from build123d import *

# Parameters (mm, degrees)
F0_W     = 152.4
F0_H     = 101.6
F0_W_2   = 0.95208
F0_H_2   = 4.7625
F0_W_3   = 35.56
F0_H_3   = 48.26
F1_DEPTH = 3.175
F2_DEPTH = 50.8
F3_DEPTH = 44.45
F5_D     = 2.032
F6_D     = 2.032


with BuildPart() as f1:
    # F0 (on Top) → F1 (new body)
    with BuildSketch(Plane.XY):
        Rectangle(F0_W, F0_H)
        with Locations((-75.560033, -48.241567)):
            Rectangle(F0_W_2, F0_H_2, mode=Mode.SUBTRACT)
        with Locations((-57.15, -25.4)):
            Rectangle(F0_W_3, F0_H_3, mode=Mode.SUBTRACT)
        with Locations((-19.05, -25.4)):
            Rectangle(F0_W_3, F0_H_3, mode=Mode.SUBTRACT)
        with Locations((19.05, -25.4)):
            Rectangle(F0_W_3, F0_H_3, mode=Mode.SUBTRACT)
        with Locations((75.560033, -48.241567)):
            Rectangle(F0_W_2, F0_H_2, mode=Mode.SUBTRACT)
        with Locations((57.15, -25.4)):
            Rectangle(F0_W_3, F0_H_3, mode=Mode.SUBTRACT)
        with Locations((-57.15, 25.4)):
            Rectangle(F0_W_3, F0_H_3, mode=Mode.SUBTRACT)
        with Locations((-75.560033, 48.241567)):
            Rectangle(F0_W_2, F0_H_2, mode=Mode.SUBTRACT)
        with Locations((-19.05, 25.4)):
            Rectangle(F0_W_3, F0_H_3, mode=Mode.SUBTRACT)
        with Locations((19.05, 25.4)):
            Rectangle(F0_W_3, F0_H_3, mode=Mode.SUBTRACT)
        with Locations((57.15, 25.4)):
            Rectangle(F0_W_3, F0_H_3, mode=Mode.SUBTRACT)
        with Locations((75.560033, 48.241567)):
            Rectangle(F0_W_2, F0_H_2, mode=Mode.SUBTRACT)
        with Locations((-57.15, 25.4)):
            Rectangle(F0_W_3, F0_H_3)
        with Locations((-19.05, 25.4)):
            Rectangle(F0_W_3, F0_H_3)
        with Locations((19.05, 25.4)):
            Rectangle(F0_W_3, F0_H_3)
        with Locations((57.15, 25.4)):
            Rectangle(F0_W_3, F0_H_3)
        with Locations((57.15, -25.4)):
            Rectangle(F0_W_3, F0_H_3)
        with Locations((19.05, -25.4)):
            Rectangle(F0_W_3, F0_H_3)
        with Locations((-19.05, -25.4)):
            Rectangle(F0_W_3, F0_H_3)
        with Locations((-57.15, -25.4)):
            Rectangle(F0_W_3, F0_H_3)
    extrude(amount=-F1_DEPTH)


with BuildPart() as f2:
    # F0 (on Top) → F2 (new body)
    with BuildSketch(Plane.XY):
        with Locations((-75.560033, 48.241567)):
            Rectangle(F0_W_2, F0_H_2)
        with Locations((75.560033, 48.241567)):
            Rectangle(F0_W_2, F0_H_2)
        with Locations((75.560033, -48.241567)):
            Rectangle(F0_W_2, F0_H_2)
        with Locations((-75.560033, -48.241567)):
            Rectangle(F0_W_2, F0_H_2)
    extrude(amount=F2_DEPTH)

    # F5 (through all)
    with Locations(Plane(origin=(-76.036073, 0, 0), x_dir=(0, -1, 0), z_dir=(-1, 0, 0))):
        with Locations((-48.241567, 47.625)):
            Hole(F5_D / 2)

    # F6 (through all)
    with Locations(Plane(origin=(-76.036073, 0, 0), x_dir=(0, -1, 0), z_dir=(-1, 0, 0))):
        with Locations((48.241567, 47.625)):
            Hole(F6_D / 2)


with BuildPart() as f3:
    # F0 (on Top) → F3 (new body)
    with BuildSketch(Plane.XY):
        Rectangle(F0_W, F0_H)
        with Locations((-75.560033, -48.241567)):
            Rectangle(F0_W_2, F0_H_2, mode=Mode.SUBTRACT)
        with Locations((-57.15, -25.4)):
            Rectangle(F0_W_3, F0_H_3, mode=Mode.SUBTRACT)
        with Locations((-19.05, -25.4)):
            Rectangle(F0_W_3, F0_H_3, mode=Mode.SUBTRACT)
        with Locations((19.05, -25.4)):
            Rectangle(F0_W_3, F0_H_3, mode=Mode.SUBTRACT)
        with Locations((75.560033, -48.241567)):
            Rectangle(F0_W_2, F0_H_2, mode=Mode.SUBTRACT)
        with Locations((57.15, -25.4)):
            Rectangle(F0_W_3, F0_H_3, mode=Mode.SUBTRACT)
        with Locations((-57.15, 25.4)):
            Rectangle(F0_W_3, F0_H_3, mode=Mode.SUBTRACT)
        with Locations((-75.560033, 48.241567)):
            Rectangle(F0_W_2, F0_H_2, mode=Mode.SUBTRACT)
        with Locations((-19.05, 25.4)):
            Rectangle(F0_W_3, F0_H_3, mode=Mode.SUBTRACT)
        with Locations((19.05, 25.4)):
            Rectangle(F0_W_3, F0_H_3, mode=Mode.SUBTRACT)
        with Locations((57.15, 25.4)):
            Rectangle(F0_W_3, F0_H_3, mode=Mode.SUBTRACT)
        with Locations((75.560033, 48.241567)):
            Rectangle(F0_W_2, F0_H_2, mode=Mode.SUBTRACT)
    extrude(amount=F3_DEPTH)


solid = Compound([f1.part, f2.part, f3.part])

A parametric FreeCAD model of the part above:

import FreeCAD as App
import Part
import Sketcher

V = App.Vector
Q = App.Units.Quantity

doc = App.newDocument("Part")
body = doc.addObject("PartDesign::Body", "Body")

# Sketch on XY plane
sketch1 = body.newObject("Sketcher::SketchObject", "Sketch")
sketch1.AttachmentSupport = (doc.getObject("XY_Plane"), [""])
sketch1.MapMode = "FlatFace"
sketch1.addGeometry(Part.LineSegment(V(-76.2, 50.8, 0), V(-76.2, -50.8, 0)), False)
sketch1.addGeometry(Part.LineSegment(V(-76.2, -50.8, 0), V(76.2, -50.8, 0)), False)
sketch1.addGeometry(Part.LineSegment(V(76.2, -50.8, 0), V(76.2, 50.8, 0)), False)
sketch1.addGeometry(Part.LineSegment(V(76.2, 50.8, 0), V(-76.2, 50.8, 0)), False)
sketch1.addGeometry(Part.LineSegment(V(-75.1, -50.6, 0), V(-76, -50.6, 0)), False)
sketch1.addGeometry(Part.LineSegment(V(-76, -50.6, 0), V(-76, -45.9, 0)), False)
sketch1.addGeometry(Part.LineSegment(V(-76, -45.9, 0), V(-75.1, -45.9, 0)), False)
sketch1.addGeometry(Part.LineSegment(V(-75.1, -45.9, 0), V(-75.1, -50.6, 0)), False)
sketch1.addGeometry(Part.LineSegment(V(76, -50.6, 0), V(75.1, -50.6, 0)), False)
sketch1.addGeometry(Part.LineSegment(V(75.1, -50.6, 0), V(75.1, -45.9, 0)), False)
sketch1.addGeometry(Part.LineSegment(V(75.1, -45.9, 0), V(76, -45.9, 0)), False)
sketch1.addGeometry(Part.LineSegment(V(76, -45.9, 0), V(76, -50.6, 0)), False)
sketch1.addGeometry(Part.LineSegment(V(-75.1, 45.9, 0), V(-76, 45.9, 0)), False)
sketch1.addGeometry(Part.LineSegment(V(-76, 45.9, 0), V(-76, 50.6, 0)), False)
sketch1.addGeometry(Part.LineSegment(V(-76, 50.6, 0), V(-75.1, 50.6, 0)), False)
sketch1.addGeometry(Part.LineSegment(V(-75.1, 50.6, 0), V(-75.1, 45.9, 0)), False)
sketch1.addGeometry(Part.LineSegment(V(76, 45.9, 0), V(75.1, 45.9, 0)), False)
sketch1.addGeometry(Part.LineSegment(V(75.1, 45.9, 0), V(75.1, 50.6, 0)), False)
sketch1.addGeometry(Part.LineSegment(V(75.1, 50.6, 0), V(76, 50.6, 0)), False)
sketch1.addGeometry(Part.LineSegment(V(76, 50.6, 0), V(76, 45.9, 0)), False)
sketch1.addConstraint(Sketcher.Constraint("Coincident", 0, 2, 1, 1))
sketch1.addConstraint(Sketcher.Constraint("Coincident", 1, 2, 2, 1))
sketch1.addConstraint(Sketcher.Constraint("Coincident", 2, 2, 3, 1))
sketch1.addConstraint(Sketcher.Constraint("Coincident", 3, 2, 0, 1))
sketch1.addConstraint(Sketcher.Constraint("Coincident", 4, 2, 5, 1))
sketch1.addConstraint(Sketcher.Constraint("Coincident", 5, 2, 6, 1))
sketch1.addConstraint(Sketcher.Constraint("Coincident", 6, 2, 7, 1))
sketch1.addConstraint(Sketcher.Constraint("Coincident", 7, 2, 4, 1))
sketch1.addConstraint(Sketcher.Constraint("Coincident", 8, 2, 9, 1))
sketch1.addConstraint(Sketcher.Constraint("Coincident", 9, 2, 10, 1))
sketch1.addConstraint(Sketcher.Constraint("Coincident", 10, 2, 11, 1))
sketch1.addConstraint(Sketcher.Constraint("Coincident", 11, 2, 8, 1))
sketch1.addConstraint(Sketcher.Constraint("Coincident", 12, 2, 13, 1))
sketch1.addConstraint(Sketcher.Constraint("Coincident", 13, 2, 14, 1))
sketch1.addConstraint(Sketcher.Constraint("Coincident", 14, 2, 15, 1))
sketch1.addConstraint(Sketcher.Constraint("Coincident", 15, 2, 12, 1))
sketch1.addConstraint(Sketcher.Constraint("Coincident", 16, 2, 17, 1))
sketch1.addConstraint(Sketcher.Constraint("Coincident", 17, 2, 18, 1))
sketch1.addConstraint(Sketcher.Constraint("Coincident", 18, 2, 19, 1))
sketch1.addConstraint(Sketcher.Constraint("Coincident", 19, 2, 16, 1))
sketch1.addConstraint(Sketcher.Constraint("Vertical", 0))
sketch1.addConstraint(Sketcher.Constraint("Horizontal", 1))
sketch1.addConstraint(Sketcher.Constraint("Vertical", 2))
sketch1.addConstraint(Sketcher.Constraint("Horizontal", 3))
sketch1.addConstraint(Sketcher.Constraint("Horizontal", 4))
sketch1.addConstraint(Sketcher.Constraint("Vertical", 5))
sketch1.addConstraint(Sketcher.Constraint("Horizontal", 6))
sketch1.addConstraint(Sketcher.Constraint("Vertical", 7))
sketch1.addConstraint(Sketcher.Constraint("Horizontal", 8))
sketch1.addConstraint(Sketcher.Constraint("Vertical", 9))
sketch1.addConstraint(Sketcher.Constraint("Horizontal", 10))
sketch1.addConstraint(Sketcher.Constraint("Vertical", 11))
sketch1.addConstraint(Sketcher.Constraint("Horizontal", 12))
sketch1.addConstraint(Sketcher.Constraint("Vertical", 13))
sketch1.addConstraint(Sketcher.Constraint("Horizontal", 14))
sketch1.addConstraint(Sketcher.Constraint("Vertical", 15))
sketch1.addConstraint(Sketcher.Constraint("Horizontal", 16))
sketch1.addConstraint(Sketcher.Constraint("Vertical", 17))
sketch1.addConstraint(Sketcher.Constraint("Horizontal", 18))
sketch1.addConstraint(Sketcher.Constraint("Vertical", 19))
sketch1.addConstraint(Sketcher.Constraint("Symmetric", 0, 2, 2, 2, -1, 1))
sketch1.addConstraint(Sketcher.Constraint("Symmetric", 10, 2, 12, 2, -1, 1))
sketch1.addConstraint(Sketcher.Constraint("Symmetric", 8, 2, 14, 2, -1, 1))
sketch1.addConstraint(Sketcher.Constraint("Symmetric", 6, 2, 16, 2, -1, 1))
sketch1.addConstraint(Sketcher.Constraint("Symmetric", 4, 2, 18, 2, -1, 1))
sketch1.addConstraint(Sketcher.Constraint("Symmetric", 7, 2, 8, 2, -2))
sketch1.addConstraint(Sketcher.Constraint("Symmetric", 5, 2, 10, 2, -2))
sketch1.addConstraint(Sketcher.Constraint("DistanceX", 1, 1, 1, 2, Q("6 in")))
sketch1.addConstraint(Sketcher.Constraint("DistanceY", 0, 2, 0, 1, Q("4 in")))
sketch1.addConstraint(Sketcher.Constraint("DistanceY", 5, 1, 5, 2, Q("0.1875 in")))
sketch1.addConstraint(Sketcher.Constraint("DistanceX", 4, 2, 4, 1, Q("0.95208 mm")))
sketch1.addConstraint(Sketcher.Constraint("DistanceX", 4, 2, -1, 1, Q("76.036073 mm")))
sketch1.addConstraint(Sketcher.Constraint("DistanceY", 4, 2, -1, 1, Q("50.622817 mm")))
pad1 = body.newObject("PartDesign::Pad", "Pad")
pad1.Profile = sketch1
pad1.Length = Q("0.125 in")
pad1.Reversed = True
body2 = doc.addObject("PartDesign::Body", "Body001")
body2.AllowCompound = True

# Sketch on XY plane
sketch2 = body2.newObject("Sketcher::SketchObject", "Sketch001")
sketch2.AttachmentSupport = (doc.getObject("XY_Plane001"), [""])
sketch2.MapMode = "FlatFace"
sketch2.addGeometry(Part.LineSegment(V(-76, 50.6, 0), V(-76, 45.9, 0)), False)
sketch2.addGeometry(Part.LineSegment(V(-76, 45.9, 0), V(-75.1, 45.9, 0)), False)
sketch2.addGeometry(Part.LineSegment(V(-75.1, 45.9, 0), V(-75.1, 50.6, 0)), False)
sketch2.addGeometry(Part.LineSegment(V(-75.1, 50.6, 0), V(-76, 50.6, 0)), False)
sketch2.addGeometry(Part.LineSegment(V(75.1, 50.6, 0), V(75.1, 45.9, 0)), False)
sketch2.addGeometry(Part.LineSegment(V(75.1, 45.9, 0), V(76, 45.9, 0)), False)
sketch2.addGeometry(Part.LineSegment(V(76, 45.9, 0), V(76, 50.6, 0)), False)
sketch2.addGeometry(Part.LineSegment(V(76, 50.6, 0), V(75.1, 50.6, 0)), False)
sketch2.addGeometry(Part.LineSegment(V(75.1, -45.9, 0), V(75.1, -50.6, 0)), False)
sketch2.addGeometry(Part.LineSegment(V(75.1, -50.6, 0), V(76, -50.6, 0)), False)
sketch2.addGeometry(Part.LineSegment(V(76, -50.6, 0), V(76, -45.9, 0)), False)
sketch2.addGeometry(Part.LineSegment(V(76, -45.9, 0), V(75.1, -45.9, 0)), False)
sketch2.addGeometry(Part.LineSegment(V(-76, -45.9, 0), V(-76, -50.6, 0)), False)
sketch2.addGeometry(Part.LineSegment(V(-76, -50.6, 0), V(-75.1, -50.6, 0)), False)
sketch2.addGeometry(Part.LineSegment(V(-75.1, -50.6, 0), V(-75.1, -45.9, 0)), False)
sketch2.addGeometry(Part.LineSegment(V(-75.1, -45.9, 0), V(-76, -45.9, 0)), False)
sketch2.addConstraint(Sketcher.Constraint("Coincident", 0, 2, 1, 1))
sketch2.addConstraint(Sketcher.Constraint("Coincident", 1, 2, 2, 1))
sketch2.addConstraint(Sketcher.Constraint("Coincident", 2, 2, 3, 1))
sketch2.addConstraint(Sketcher.Constraint("Coincident", 3, 2, 0, 1))
sketch2.addConstraint(Sketcher.Constraint("Coincident", 4, 2, 5, 1))
sketch2.addConstraint(Sketcher.Constraint("Coincident", 5, 2, 6, 1))
sketch2.addConstraint(Sketcher.Constraint("Coincident", 6, 2, 7, 1))
sketch2.addConstraint(Sketcher.Constraint("Coincident", 7, 2, 4, 1))
sketch2.addConstraint(Sketcher.Constraint("Coincident", 8, 2, 9, 1))
sketch2.addConstraint(Sketcher.Constraint("Coincident", 9, 2, 10, 1))
sketch2.addConstraint(Sketcher.Constraint("Coincident", 10, 2, 11, 1))
sketch2.addConstraint(Sketcher.Constraint("Coincident", 11, 2, 8, 1))
sketch2.addConstraint(Sketcher.Constraint("Coincident", 12, 2, 13, 1))
sketch2.addConstraint(Sketcher.Constraint("Coincident", 13, 2, 14, 1))
sketch2.addConstraint(Sketcher.Constraint("Coincident", 14, 2, 15, 1))
sketch2.addConstraint(Sketcher.Constraint("Coincident", 15, 2, 12, 1))
sketch2.addConstraint(Sketcher.Constraint("Vertical", 0))
sketch2.addConstraint(Sketcher.Constraint("Horizontal", 1))
sketch2.addConstraint(Sketcher.Constraint("Vertical", 2))
sketch2.addConstraint(Sketcher.Constraint("Horizontal", 3))
sketch2.addConstraint(Sketcher.Constraint("Vertical", 4))
sketch2.addConstraint(Sketcher.Constraint("Horizontal", 5))
sketch2.addConstraint(Sketcher.Constraint("Vertical", 6))
sketch2.addConstraint(Sketcher.Constraint("Horizontal", 7))
sketch2.addConstraint(Sketcher.Constraint("Vertical", 8))
sketch2.addConstraint(Sketcher.Constraint("Horizontal", 9))
sketch2.addConstraint(Sketcher.Constraint("Vertical", 10))
sketch2.addConstraint(Sketcher.Constraint("Horizontal", 11))
sketch2.addConstraint(Sketcher.Constraint("Vertical", 12))
sketch2.addConstraint(Sketcher.Constraint("Horizontal", 13))
sketch2.addConstraint(Sketcher.Constraint("Vertical", 14))
sketch2.addConstraint(Sketcher.Constraint("Horizontal", 15))
sketch2.addConstraint(Sketcher.Constraint("Symmetric", 2, 2, 8, 2, -1, 1))
sketch2.addConstraint(Sketcher.Constraint("Symmetric", 0, 2, 10, 2, -1, 1))
sketch2.addConstraint(Sketcher.Constraint("Symmetric", 6, 2, 12, 2, -1, 1))
sketch2.addConstraint(Sketcher.Constraint("Symmetric", 4, 2, 14, 2, -1, 1))
sketch2.addConstraint(Sketcher.Constraint("Symmetric", 1, 2, 4, 2, -2))
sketch2.addConstraint(Sketcher.Constraint("Symmetric", 3, 2, 6, 2, -2))
sketch2.addConstraint(Sketcher.Constraint("DistanceY", 0, 2, 0, 1, Q("0.1875 in")))
sketch2.addConstraint(Sketcher.Constraint("DistanceX", 1, 1, 1, 2, Q("0.95208 mm")))
sketch2.addConstraint(Sketcher.Constraint("DistanceX", 0, 2, -1, 1, Q("76.036073 mm")))
sketch2.addConstraint(Sketcher.Constraint("DistanceY", -1, 1, 0, 2, Q("45.860317 mm")))
pad2 = body2.newObject("PartDesign::Pad", "Pad001")
pad2.Profile = sketch2
pad2.Length = Q("2 in")

# Sketch on YZ plane
sketch3 = body2.newObject("Sketcher::SketchObject", "Sketch002")
sketch3.AttachmentSupport = (doc.getObject("YZ_Plane001"), [""])
sketch3.MapMode = "FlatFace"
sketch3.AttachmentOffset = App.Placement(V(0, 0, -76.036073), App.Rotation())
sketch3.addGeometry(Part.Circle(V(48.2, 47.6, 0), V(0, 0, 1), 1), False)
sketch3.addConstraint(Sketcher.Constraint("Diameter", 0, Q("0.08 in")))
sketch3.addConstraint(Sketcher.Constraint("DistanceY", -1, 1, 0, 3, Q("1.875 in")))
sketch3.addConstraint(Sketcher.Constraint("DistanceX", -1, 1, 0, 3, Q("48.241567 mm")))
doc.recompute()
hole = body2.newObject("PartDesign::Hole", "Hole")
hole.Profile = sketch3
hole.ThreadType = "None"
hole.Diameter = Q("0.08 in")
hole.DepthType = "ThroughAll"
hole.Reversed = True

# Sketch on YZ plane
sketch4 = body2.newObject("Sketcher::SketchObject", "Sketch003")
sketch4.AttachmentSupport = (doc.getObject("YZ_Plane001"), [""])
sketch4.MapMode = "FlatFace"
sketch4.AttachmentOffset = App.Placement(V(0, 0, -76.036073), App.Rotation())
sketch4.addGeometry(Part.Circle(V(-48.2, 47.6, 0), V(0, 0, 1), 1), False)
sketch4.addConstraint(Sketcher.Constraint("Diameter", 0, Q("0.08 in")))
sketch4.addConstraint(Sketcher.Constraint("DistanceY", -1, 1, 0, 3, Q("1.875 in")))
sketch4.addConstraint(Sketcher.Constraint("DistanceX", 0, 3, -1, 1, Q("48.241567 mm")))
doc.recompute()
hole2 = body2.newObject("PartDesign::Hole", "Hole001")
hole2.Profile = sketch4
hole2.ThreadType = "None"
hole2.Diameter = Q("0.08 in")
hole2.DepthType = "ThroughAll"
hole2.Reversed = True
body3 = doc.addObject("PartDesign::Body", "Body002")

# Sketch on XY plane
sketch5 = body3.newObject("Sketcher::SketchObject", "Sketch004")
sketch5.AttachmentSupport = (doc.getObject("XY_Plane002"), [""])
sketch5.MapMode = "FlatFace"
sketch5.addGeometry(Part.LineSegment(V(-76.2, 50.8, 0), V(-76.2, -50.8, 0)), False)
sketch5.addGeometry(Part.LineSegment(V(-76.2, -50.8, 0), V(76.2, -50.8, 0)), False)
sketch5.addGeometry(Part.LineSegment(V(76.2, -50.8, 0), V(76.2, 50.8, 0)), False)
sketch5.addGeometry(Part.LineSegment(V(76.2, 50.8, 0), V(-76.2, 50.8, 0)), False)
sketch5.addGeometry(Part.LineSegment(V(-75.1, -50.6, 0), V(-76, -50.6, 0)), False)
sketch5.addGeometry(Part.LineSegment(V(-76, -50.6, 0), V(-76, -45.9, 0)), False)
sketch5.addGeometry(Part.LineSegment(V(-76, -45.9, 0), V(-75.1, -45.9, 0)), False)
sketch5.addGeometry(Part.LineSegment(V(-75.1, -45.9, 0), V(-75.1, -50.6, 0)), False)
sketch5.addGeometry(Part.LineSegment(V(-39.4, -49.5, 0), V(-74.9, -49.5, 0)), False)
sketch5.addGeometry(Part.LineSegment(V(-74.9, -49.5, 0), V(-74.9, -1.3, 0)), False)
sketch5.addGeometry(Part.LineSegment(V(-74.9, -1.3, 0), V(-39.4, -1.3, 0)), False)
sketch5.addGeometry(Part.LineSegment(V(-39.4, -1.3, 0), V(-39.4, -49.5, 0)), False)
sketch5.addGeometry(Part.LineSegment(V(-1.3, -49.5, 0), V(-36.8, -49.5, 0)), False)
sketch5.addGeometry(Part.LineSegment(V(-36.8, -49.5, 0), V(-36.8, -1.3, 0)), False)
sketch5.addGeometry(Part.LineSegment(V(-36.8, -1.3, 0), V(-1.3, -1.3, 0)), False)
sketch5.addGeometry(Part.LineSegment(V(-1.3, -1.3, 0), V(-1.3, -49.5, 0)), False)
sketch5.addGeometry(Part.LineSegment(V(36.8, -49.5, 0), V(1.3, -49.5, 0)), False)
sketch5.addGeometry(Part.LineSegment(V(1.3, -49.5, 0), V(1.3, -1.3, 0)), False)
sketch5.addGeometry(Part.LineSegment(V(1.3, -1.3, 0), V(36.8, -1.3, 0)), False)
sketch5.addGeometry(Part.LineSegment(V(36.8, -1.3, 0), V(36.8, -49.5, 0)), False)
sketch5.addGeometry(Part.LineSegment(V(76, -50.6, 0), V(75.1, -50.6, 0)), False)
sketch5.addGeometry(Part.LineSegment(V(75.1, -50.6, 0), V(75.1, -45.9, 0)), False)
sketch5.addGeometry(Part.LineSegment(V(75.1, -45.9, 0), V(76, -45.9, 0)), False)
sketch5.addGeometry(Part.LineSegment(V(76, -45.9, 0), V(76, -50.6, 0)), False)
sketch5.addGeometry(Part.LineSegment(V(74.9, -49.5, 0), V(39.4, -49.5, 0)), False)
sketch5.addGeometry(Part.LineSegment(V(39.4, -49.5, 0), V(39.4, -1.3, 0)), False)
sketch5.addGeometry(Part.LineSegment(V(39.4, -1.3, 0), V(74.9, -1.3, 0)), False)
sketch5.addGeometry(Part.LineSegment(V(74.9, -1.3, 0), V(74.9, -49.5, 0)), False)
sketch5.addGeometry(Part.LineSegment(V(-39.4, 1.3, 0), V(-74.9, 1.3, 0)), False)
sketch5.addGeometry(Part.LineSegment(V(-74.9, 1.3, 0), V(-74.9, 49.5, 0)), False)
sketch5.addGeometry(Part.LineSegment(V(-74.9, 49.5, 0), V(-39.4, 49.5, 0)), False)
sketch5.addGeometry(Part.LineSegment(V(-39.4, 49.5, 0), V(-39.4, 1.3, 0)), False)
sketch5.addGeometry(Part.LineSegment(V(-75.1, 45.9, 0), V(-76, 45.9, 0)), False)
sketch5.addGeometry(Part.LineSegment(V(-76, 45.9, 0), V(-76, 50.6, 0)), False)
sketch5.addGeometry(Part.LineSegment(V(-76, 50.6, 0), V(-75.1, 50.6, 0)), False)
sketch5.addGeometry(Part.LineSegment(V(-75.1, 50.6, 0), V(-75.1, 45.9, 0)), False)
sketch5.addGeometry(Part.LineSegment(V(-1.3, 1.3, 0), V(-36.8, 1.3, 0)), False)
sketch5.addGeometry(Part.LineSegment(V(-36.8, 1.3, 0), V(-36.8, 49.5, 0)), False)
sketch5.addGeometry(Part.LineSegment(V(-36.8, 49.5, 0), V(-1.3, 49.5, 0)), False)
sketch5.addGeometry(Part.LineSegment(V(-1.3, 49.5, 0), V(-1.3, 1.3, 0)), False)
sketch5.addGeometry(Part.LineSegment(V(36.8, 1.3, 0), V(1.3, 1.3, 0)), False)
sketch5.addGeometry(Part.LineSegment(V(1.3, 1.3, 0), V(1.3, 49.5, 0)), False)
sketch5.addGeometry(Part.LineSegment(V(1.3, 49.5, 0), V(36.8, 49.5, 0)), False)
sketch5.addGeometry(Part.LineSegment(V(36.8, 49.5, 0), V(36.8, 1.3, 0)), False)
sketch5.addGeometry(Part.LineSegment(V(74.9, 1.3, 0), V(39.4, 1.3, 0)), False)
sketch5.addGeometry(Part.LineSegment(V(39.4, 1.3, 0), V(39.4, 49.5, 0)), False)
sketch5.addGeometry(Part.LineSegment(V(39.4, 49.5, 0), V(74.9, 49.5, 0)), False)
sketch5.addGeometry(Part.LineSegment(V(74.9, 49.5, 0), V(74.9, 1.3, 0)), False)
sketch5.addGeometry(Part.LineSegment(V(76, 45.9, 0), V(75.1, 45.9, 0)), False)
sketch5.addGeometry(Part.LineSegment(V(75.1, 45.9, 0), V(75.1, 50.6, 0)), False)
sketch5.addGeometry(Part.LineSegment(V(75.1, 50.6, 0), V(76, 50.6, 0)), False)
sketch5.addGeometry(Part.LineSegment(V(76, 50.6, 0), V(76, 45.9, 0)), False)
sketch5.addConstraint(Sketcher.Constraint("Coincident", 0, 2, 1, 1))
sketch5.addConstraint(Sketcher.Constraint("Coincident", 1, 2, 2, 1))
sketch5.addConstraint(Sketcher.Constraint("Coincident", 2, 2, 3, 1))
sketch5.addConstraint(Sketcher.Constraint("Coincident", 3, 2, 0, 1))
sketch5.addConstraint(Sketcher.Constraint("Coincident", 4, 2, 5, 1))
sketch5.addConstraint(Sketcher.Constraint("Coincident", 5, 2, 6, 1))
sketch5.addConstraint(Sketcher.Constraint("Coincident", 6, 2, 7, 1))
sketch5.addConstraint(Sketcher.Constraint("Coincident", 7, 2, 4, 1))
sketch5.addConstraint(Sketcher.Constraint("Coincident", 8, 2, 9, 1))
sketch5.addConstraint(Sketcher.Constraint("Coincident", 9, 2, 10, 1))
sketch5.addConstraint(Sketcher.Constraint("Coincident", 10, 2, 11, 1))
sketch5.addConstraint(Sketcher.Constraint("Coincident", 11, 2, 8, 1))
sketch5.addConstraint(Sketcher.Constraint("Coincident", 12, 2, 13, 1))
sketch5.addConstraint(Sketcher.Constraint("Coincident", 13, 2, 14, 1))
sketch5.addConstraint(Sketcher.Constraint("Coincident", 14, 2, 15, 1))
sketch5.addConstraint(Sketcher.Constraint("Coincident", 15, 2, 12, 1))
sketch5.addConstraint(Sketcher.Constraint("Coincident", 16, 2, 17, 1))
sketch5.addConstraint(Sketcher.Constraint("Coincident", 17, 2, 18, 1))
sketch5.addConstraint(Sketcher.Constraint("Coincident", 18, 2, 19, 1))
sketch5.addConstraint(Sketcher.Constraint("Coincident", 19, 2, 16, 1))
sketch5.addConstraint(Sketcher.Constraint("Coincident", 20, 2, 21, 1))
sketch5.addConstraint(Sketcher.Constraint("Coincident", 21, 2, 22, 1))
sketch5.addConstraint(Sketcher.Constraint("Coincident", 22, 2, 23, 1))
sketch5.addConstraint(Sketcher.Constraint("Coincident", 23, 2, 20, 1))
sketch5.addConstraint(Sketcher.Constraint("Coincident", 24, 2, 25, 1))
sketch5.addConstraint(Sketcher.Constraint("Coincident", 25, 2, 26, 1))
sketch5.addConstraint(Sketcher.Constraint("Coincident", 26, 2, 27, 1))
sketch5.addConstraint(Sketcher.Constraint("Coincident", 27, 2, 24, 1))
sketch5.addConstraint(Sketcher.Constraint("Coincident", 28, 2, 29, 1))
sketch5.addConstraint(Sketcher.Constraint("Coincident", 29, 2, 30, 1))
sketch5.addConstraint(Sketcher.Constraint("Coincident", 30, 2, 31, 1))
sketch5.addConstraint(Sketcher.Constraint("Coincident", 31, 2, 28, 1))
sketch5.addConstraint(Sketcher.Constraint("Coincident", 32, 2, 33, 1))
sketch5.addConstraint(Sketcher.Constraint("Coincident", 33, 2, 34, 1))
sketch5.addConstraint(Sketcher.Constraint("Coincident", 34, 2, 35, 1))
sketch5.addConstraint(Sketcher.Constraint("Coincident", 35, 2, 32, 1))
sketch5.addConstraint(Sketcher.Constraint("Coincident", 36, 2, 37, 1))
sketch5.addConstraint(Sketcher.Constraint("Coincident", 37, 2, 38, 1))
sketch5.addConstraint(Sketcher.Constraint("Coincident", 38, 2, 39, 1))
sketch5.addConstraint(Sketcher.Constraint("Coincident", 39, 2, 36, 1))
sketch5.addConstraint(Sketcher.Constraint("Coincident", 40, 2, 41, 1))
sketch5.addConstraint(Sketcher.Constraint("Coincident", 41, 2, 42, 1))
sketch5.addConstraint(Sketcher.Constraint("Coincident", 42, 2, 43, 1))
sketch5.addConstraint(Sketcher.Constraint("Coincident", 43, 2, 40, 1))
sketch5.addConstraint(Sketcher.Constraint("Coincident", 44, 2, 45, 1))
sketch5.addConstraint(Sketcher.Constraint("Coincident", 45, 2, 46, 1))
sketch5.addConstraint(Sketcher.Constraint("Coincident", 46, 2, 47, 1))
sketch5.addConstraint(Sketcher.Constraint("Coincident", 47, 2, 44, 1))
sketch5.addConstraint(Sketcher.Constraint("Coincident", 48, 2, 49, 1))
sketch5.addConstraint(Sketcher.Constraint("Coincident", 49, 2, 50, 1))
sketch5.addConstraint(Sketcher.Constraint("Coincident", 50, 2, 51, 1))
sketch5.addConstraint(Sketcher.Constraint("Coincident", 51, 2, 48, 1))
sketch5.addConstraint(Sketcher.Constraint("Vertical", 0))
sketch5.addConstraint(Sketcher.Constraint("Horizontal", 1))
sketch5.addConstraint(Sketcher.Constraint("Vertical", 2))
sketch5.addConstraint(Sketcher.Constraint("Horizontal", 3))
sketch5.addConstraint(Sketcher.Constraint("Horizontal", 4))
sketch5.addConstraint(Sketcher.Constraint("Vertical", 5))
sketch5.addConstraint(Sketcher.Constraint("Horizontal", 6))
sketch5.addConstraint(Sketcher.Constraint("Vertical", 7))
sketch5.addConstraint(Sketcher.Constraint("Horizontal", 8))
sketch5.addConstraint(Sketcher.Constraint("Vertical", 9))
sketch5.addConstraint(Sketcher.Constraint("Horizontal", 10))
sketch5.addConstraint(Sketcher.Constraint("Vertical", 11))
sketch5.addConstraint(Sketcher.Constraint("Horizontal", 12))
sketch5.addConstraint(Sketcher.Constraint("Vertical", 13))
sketch5.addConstraint(Sketcher.Constraint("Horizontal", 14))
sketch5.addConstraint(Sketcher.Constraint("Vertical", 15))
sketch5.addConstraint(Sketcher.Constraint("Horizontal", 16))
sketch5.addConstraint(Sketcher.Constraint("Vertical", 17))
sketch5.addConstraint(Sketcher.Constraint("Horizontal", 18))
sketch5.addConstraint(Sketcher.Constraint("Vertical", 19))
sketch5.addConstraint(Sketcher.Constraint("Horizontal", 20))
sketch5.addConstraint(Sketcher.Constraint("Vertical", 21))
sketch5.addConstraint(Sketcher.Constraint("Horizontal", 22))
sketch5.addConstraint(Sketcher.Constraint("Vertical", 23))
sketch5.addConstraint(Sketcher.Constraint("Horizontal", 24))
sketch5.addConstraint(Sketcher.Constraint("Vertical", 25))
sketch5.addConstraint(Sketcher.Constraint("Horizontal", 26))
sketch5.addConstraint(Sketcher.Constraint("Vertical", 27))
sketch5.addConstraint(Sketcher.Constraint("Horizontal", 28))
sketch5.addConstraint(Sketcher.Constraint("Vertical", 29))
sketch5.addConstraint(Sketcher.Constraint("Horizontal", 30))
sketch5.addConstraint(Sketcher.Constraint("Vertical", 31))
sketch5.addConstraint(Sketcher.Constraint("Horizontal", 32))
sketch5.addConstraint(Sketcher.Constraint("Vertical", 33))
sketch5.addConstraint(Sketcher.Constraint("Horizontal", 34))
sketch5.addConstraint(Sketcher.Constraint("Vertical", 35))
sketch5.addConstraint(Sketcher.Constraint("Horizontal", 36))
sketch5.addConstraint(Sketcher.Constraint("Vertical", 37))
sketch5.addConstraint(Sketcher.Constraint("Horizontal", 38))
sketch5.addConstraint(Sketcher.Constraint("Vertical", 39))
sketch5.addConstraint(Sketcher.Constraint("Horizontal", 40))
sketch5.addConstraint(Sketcher.Constraint("Vertical", 41))
sketch5.addConstraint(Sketcher.Constraint("Horizontal", 42))
sketch5.addConstraint(Sketcher.Constraint("Vertical", 43))
sketch5.addConstraint(Sketcher.Constraint("Horizontal", 44))
sketch5.addConstraint(Sketcher.Constraint("Vertical", 45))
sketch5.addConstraint(Sketcher.Constraint("Horizontal", 46))
sketch5.addConstraint(Sketcher.Constraint("Vertical", 47))
sketch5.addConstraint(Sketcher.Constraint("Horizontal", 48))
sketch5.addConstraint(Sketcher.Constraint("Vertical", 49))
sketch5.addConstraint(Sketcher.Constraint("Horizontal", 50))
sketch5.addConstraint(Sketcher.Constraint("Vertical", 51))
sketch5.addConstraint(Sketcher.Constraint("Symmetric", 0, 2, 2, 2, -1, 1))
sketch5.addConstraint(Sketcher.Constraint("Symmetric", 26, 2, 28, 2, -1, 1))
sketch5.addConstraint(Sketcher.Constraint("Symmetric", 24, 2, 30, 2, -1, 1))
sketch5.addConstraint(Sketcher.Constraint("Symmetric", 22, 2, 32, 2, -1, 1))
sketch5.addConstraint(Sketcher.Constraint("Symmetric", 20, 2, 34, 2, -1, 1))
sketch5.addConstraint(Sketcher.Constraint("Symmetric", 18, 2, 36, 2, -1, 1))
sketch5.addConstraint(Sketcher.Constraint("Symmetric", 16, 2, 38, 2, -1, 1))
sketch5.addConstraint(Sketcher.Constraint("Symmetric", 14, 2, 40, 2, -1, 1))
sketch5.addConstraint(Sketcher.Constraint("Symmetric", 12, 2, 42, 2, -1, 1))
sketch5.addConstraint(Sketcher.Constraint("Symmetric", 10, 2, 44, 2, -1, 1))
sketch5.addConstraint(Sketcher.Constraint("Symmetric", 8, 2, 46, 2, -1, 1))
sketch5.addConstraint(Sketcher.Constraint("Symmetric", 6, 2, 48, 2, -1, 1))
sketch5.addConstraint(Sketcher.Constraint("Symmetric", 4, 2, 50, 2, -1, 1))
sketch5.addConstraint(Sketcher.Constraint("Symmetric", 15, 2, 16, 2, -2))
sketch5.addConstraint(Sketcher.Constraint("Symmetric", 13, 2, 18, 2, -2))
sketch5.addConstraint(Sketcher.Constraint("Symmetric", 7, 2, 20, 2, -2))
sketch5.addConstraint(Sketcher.Constraint("Symmetric", 5, 2, 22, 2, -2))
sketch5.addConstraint(Sketcher.Constraint("Symmetric", 11, 2, 24, 2, -2))
sketch5.addConstraint(Sketcher.Constraint("Symmetric", 9, 2, 26, 2, -2))
sketch5.addConstraint(Sketcher.Constraint("Horizontal", 11, 2, 12, 2))
sketch5.addConstraint(Sketcher.Constraint("Horizontal", 10, 2, 13, 2))
sketch5.addConstraint(Sketcher.Constraint("Equal", 10, 12))
sketch5.addConstraint(Sketcher.Constraint("DistanceX", 1, 1, 1, 2, Q("6 in")))
sketch5.addConstraint(Sketcher.Constraint("DistanceY", 0, 2, 0, 1, Q("4 in")))
sketch5.addConstraint(Sketcher.Constraint("DistanceX", 8, 2, 8, 1, Q("1.4 in")))
sketch5.addConstraint(Sketcher.Constraint("DistanceY", 9, 1, 9, 2, Q("1.9 in")))
sketch5.addConstraint(Sketcher.Constraint("DistanceY", 9, 2, 29, 2, Q("2 in")))
sketch5.addConstraint(Sketcher.Constraint("DistanceX", 11, 2, 12, 2, Q("0.1 in")))
sketch5.addConstraint(Sketcher.Constraint("DistanceX", 15, 2, 16, 2, Q("0.1 in")))
sketch5.addConstraint(Sketcher.Constraint("DistanceY", 5, 1, 5, 2, Q("0.1875 in")))
sketch5.addConstraint(Sketcher.Constraint("DistanceX", 4, 2, 4, 1, Q("0.95208 mm")))
sketch5.addConstraint(Sketcher.Constraint("DistanceX", 4, 2, -1, 1, Q("76.036073 mm")))
sketch5.addConstraint(Sketcher.Constraint("DistanceY", 4, 2, -1, 1, Q("50.622817 mm")))
pad3 = body3.newObject("PartDesign::Pad", "Pad002")
pad3.Profile = sketch5
pad3.Length = Q("1.75 in")

doc.recompute()
